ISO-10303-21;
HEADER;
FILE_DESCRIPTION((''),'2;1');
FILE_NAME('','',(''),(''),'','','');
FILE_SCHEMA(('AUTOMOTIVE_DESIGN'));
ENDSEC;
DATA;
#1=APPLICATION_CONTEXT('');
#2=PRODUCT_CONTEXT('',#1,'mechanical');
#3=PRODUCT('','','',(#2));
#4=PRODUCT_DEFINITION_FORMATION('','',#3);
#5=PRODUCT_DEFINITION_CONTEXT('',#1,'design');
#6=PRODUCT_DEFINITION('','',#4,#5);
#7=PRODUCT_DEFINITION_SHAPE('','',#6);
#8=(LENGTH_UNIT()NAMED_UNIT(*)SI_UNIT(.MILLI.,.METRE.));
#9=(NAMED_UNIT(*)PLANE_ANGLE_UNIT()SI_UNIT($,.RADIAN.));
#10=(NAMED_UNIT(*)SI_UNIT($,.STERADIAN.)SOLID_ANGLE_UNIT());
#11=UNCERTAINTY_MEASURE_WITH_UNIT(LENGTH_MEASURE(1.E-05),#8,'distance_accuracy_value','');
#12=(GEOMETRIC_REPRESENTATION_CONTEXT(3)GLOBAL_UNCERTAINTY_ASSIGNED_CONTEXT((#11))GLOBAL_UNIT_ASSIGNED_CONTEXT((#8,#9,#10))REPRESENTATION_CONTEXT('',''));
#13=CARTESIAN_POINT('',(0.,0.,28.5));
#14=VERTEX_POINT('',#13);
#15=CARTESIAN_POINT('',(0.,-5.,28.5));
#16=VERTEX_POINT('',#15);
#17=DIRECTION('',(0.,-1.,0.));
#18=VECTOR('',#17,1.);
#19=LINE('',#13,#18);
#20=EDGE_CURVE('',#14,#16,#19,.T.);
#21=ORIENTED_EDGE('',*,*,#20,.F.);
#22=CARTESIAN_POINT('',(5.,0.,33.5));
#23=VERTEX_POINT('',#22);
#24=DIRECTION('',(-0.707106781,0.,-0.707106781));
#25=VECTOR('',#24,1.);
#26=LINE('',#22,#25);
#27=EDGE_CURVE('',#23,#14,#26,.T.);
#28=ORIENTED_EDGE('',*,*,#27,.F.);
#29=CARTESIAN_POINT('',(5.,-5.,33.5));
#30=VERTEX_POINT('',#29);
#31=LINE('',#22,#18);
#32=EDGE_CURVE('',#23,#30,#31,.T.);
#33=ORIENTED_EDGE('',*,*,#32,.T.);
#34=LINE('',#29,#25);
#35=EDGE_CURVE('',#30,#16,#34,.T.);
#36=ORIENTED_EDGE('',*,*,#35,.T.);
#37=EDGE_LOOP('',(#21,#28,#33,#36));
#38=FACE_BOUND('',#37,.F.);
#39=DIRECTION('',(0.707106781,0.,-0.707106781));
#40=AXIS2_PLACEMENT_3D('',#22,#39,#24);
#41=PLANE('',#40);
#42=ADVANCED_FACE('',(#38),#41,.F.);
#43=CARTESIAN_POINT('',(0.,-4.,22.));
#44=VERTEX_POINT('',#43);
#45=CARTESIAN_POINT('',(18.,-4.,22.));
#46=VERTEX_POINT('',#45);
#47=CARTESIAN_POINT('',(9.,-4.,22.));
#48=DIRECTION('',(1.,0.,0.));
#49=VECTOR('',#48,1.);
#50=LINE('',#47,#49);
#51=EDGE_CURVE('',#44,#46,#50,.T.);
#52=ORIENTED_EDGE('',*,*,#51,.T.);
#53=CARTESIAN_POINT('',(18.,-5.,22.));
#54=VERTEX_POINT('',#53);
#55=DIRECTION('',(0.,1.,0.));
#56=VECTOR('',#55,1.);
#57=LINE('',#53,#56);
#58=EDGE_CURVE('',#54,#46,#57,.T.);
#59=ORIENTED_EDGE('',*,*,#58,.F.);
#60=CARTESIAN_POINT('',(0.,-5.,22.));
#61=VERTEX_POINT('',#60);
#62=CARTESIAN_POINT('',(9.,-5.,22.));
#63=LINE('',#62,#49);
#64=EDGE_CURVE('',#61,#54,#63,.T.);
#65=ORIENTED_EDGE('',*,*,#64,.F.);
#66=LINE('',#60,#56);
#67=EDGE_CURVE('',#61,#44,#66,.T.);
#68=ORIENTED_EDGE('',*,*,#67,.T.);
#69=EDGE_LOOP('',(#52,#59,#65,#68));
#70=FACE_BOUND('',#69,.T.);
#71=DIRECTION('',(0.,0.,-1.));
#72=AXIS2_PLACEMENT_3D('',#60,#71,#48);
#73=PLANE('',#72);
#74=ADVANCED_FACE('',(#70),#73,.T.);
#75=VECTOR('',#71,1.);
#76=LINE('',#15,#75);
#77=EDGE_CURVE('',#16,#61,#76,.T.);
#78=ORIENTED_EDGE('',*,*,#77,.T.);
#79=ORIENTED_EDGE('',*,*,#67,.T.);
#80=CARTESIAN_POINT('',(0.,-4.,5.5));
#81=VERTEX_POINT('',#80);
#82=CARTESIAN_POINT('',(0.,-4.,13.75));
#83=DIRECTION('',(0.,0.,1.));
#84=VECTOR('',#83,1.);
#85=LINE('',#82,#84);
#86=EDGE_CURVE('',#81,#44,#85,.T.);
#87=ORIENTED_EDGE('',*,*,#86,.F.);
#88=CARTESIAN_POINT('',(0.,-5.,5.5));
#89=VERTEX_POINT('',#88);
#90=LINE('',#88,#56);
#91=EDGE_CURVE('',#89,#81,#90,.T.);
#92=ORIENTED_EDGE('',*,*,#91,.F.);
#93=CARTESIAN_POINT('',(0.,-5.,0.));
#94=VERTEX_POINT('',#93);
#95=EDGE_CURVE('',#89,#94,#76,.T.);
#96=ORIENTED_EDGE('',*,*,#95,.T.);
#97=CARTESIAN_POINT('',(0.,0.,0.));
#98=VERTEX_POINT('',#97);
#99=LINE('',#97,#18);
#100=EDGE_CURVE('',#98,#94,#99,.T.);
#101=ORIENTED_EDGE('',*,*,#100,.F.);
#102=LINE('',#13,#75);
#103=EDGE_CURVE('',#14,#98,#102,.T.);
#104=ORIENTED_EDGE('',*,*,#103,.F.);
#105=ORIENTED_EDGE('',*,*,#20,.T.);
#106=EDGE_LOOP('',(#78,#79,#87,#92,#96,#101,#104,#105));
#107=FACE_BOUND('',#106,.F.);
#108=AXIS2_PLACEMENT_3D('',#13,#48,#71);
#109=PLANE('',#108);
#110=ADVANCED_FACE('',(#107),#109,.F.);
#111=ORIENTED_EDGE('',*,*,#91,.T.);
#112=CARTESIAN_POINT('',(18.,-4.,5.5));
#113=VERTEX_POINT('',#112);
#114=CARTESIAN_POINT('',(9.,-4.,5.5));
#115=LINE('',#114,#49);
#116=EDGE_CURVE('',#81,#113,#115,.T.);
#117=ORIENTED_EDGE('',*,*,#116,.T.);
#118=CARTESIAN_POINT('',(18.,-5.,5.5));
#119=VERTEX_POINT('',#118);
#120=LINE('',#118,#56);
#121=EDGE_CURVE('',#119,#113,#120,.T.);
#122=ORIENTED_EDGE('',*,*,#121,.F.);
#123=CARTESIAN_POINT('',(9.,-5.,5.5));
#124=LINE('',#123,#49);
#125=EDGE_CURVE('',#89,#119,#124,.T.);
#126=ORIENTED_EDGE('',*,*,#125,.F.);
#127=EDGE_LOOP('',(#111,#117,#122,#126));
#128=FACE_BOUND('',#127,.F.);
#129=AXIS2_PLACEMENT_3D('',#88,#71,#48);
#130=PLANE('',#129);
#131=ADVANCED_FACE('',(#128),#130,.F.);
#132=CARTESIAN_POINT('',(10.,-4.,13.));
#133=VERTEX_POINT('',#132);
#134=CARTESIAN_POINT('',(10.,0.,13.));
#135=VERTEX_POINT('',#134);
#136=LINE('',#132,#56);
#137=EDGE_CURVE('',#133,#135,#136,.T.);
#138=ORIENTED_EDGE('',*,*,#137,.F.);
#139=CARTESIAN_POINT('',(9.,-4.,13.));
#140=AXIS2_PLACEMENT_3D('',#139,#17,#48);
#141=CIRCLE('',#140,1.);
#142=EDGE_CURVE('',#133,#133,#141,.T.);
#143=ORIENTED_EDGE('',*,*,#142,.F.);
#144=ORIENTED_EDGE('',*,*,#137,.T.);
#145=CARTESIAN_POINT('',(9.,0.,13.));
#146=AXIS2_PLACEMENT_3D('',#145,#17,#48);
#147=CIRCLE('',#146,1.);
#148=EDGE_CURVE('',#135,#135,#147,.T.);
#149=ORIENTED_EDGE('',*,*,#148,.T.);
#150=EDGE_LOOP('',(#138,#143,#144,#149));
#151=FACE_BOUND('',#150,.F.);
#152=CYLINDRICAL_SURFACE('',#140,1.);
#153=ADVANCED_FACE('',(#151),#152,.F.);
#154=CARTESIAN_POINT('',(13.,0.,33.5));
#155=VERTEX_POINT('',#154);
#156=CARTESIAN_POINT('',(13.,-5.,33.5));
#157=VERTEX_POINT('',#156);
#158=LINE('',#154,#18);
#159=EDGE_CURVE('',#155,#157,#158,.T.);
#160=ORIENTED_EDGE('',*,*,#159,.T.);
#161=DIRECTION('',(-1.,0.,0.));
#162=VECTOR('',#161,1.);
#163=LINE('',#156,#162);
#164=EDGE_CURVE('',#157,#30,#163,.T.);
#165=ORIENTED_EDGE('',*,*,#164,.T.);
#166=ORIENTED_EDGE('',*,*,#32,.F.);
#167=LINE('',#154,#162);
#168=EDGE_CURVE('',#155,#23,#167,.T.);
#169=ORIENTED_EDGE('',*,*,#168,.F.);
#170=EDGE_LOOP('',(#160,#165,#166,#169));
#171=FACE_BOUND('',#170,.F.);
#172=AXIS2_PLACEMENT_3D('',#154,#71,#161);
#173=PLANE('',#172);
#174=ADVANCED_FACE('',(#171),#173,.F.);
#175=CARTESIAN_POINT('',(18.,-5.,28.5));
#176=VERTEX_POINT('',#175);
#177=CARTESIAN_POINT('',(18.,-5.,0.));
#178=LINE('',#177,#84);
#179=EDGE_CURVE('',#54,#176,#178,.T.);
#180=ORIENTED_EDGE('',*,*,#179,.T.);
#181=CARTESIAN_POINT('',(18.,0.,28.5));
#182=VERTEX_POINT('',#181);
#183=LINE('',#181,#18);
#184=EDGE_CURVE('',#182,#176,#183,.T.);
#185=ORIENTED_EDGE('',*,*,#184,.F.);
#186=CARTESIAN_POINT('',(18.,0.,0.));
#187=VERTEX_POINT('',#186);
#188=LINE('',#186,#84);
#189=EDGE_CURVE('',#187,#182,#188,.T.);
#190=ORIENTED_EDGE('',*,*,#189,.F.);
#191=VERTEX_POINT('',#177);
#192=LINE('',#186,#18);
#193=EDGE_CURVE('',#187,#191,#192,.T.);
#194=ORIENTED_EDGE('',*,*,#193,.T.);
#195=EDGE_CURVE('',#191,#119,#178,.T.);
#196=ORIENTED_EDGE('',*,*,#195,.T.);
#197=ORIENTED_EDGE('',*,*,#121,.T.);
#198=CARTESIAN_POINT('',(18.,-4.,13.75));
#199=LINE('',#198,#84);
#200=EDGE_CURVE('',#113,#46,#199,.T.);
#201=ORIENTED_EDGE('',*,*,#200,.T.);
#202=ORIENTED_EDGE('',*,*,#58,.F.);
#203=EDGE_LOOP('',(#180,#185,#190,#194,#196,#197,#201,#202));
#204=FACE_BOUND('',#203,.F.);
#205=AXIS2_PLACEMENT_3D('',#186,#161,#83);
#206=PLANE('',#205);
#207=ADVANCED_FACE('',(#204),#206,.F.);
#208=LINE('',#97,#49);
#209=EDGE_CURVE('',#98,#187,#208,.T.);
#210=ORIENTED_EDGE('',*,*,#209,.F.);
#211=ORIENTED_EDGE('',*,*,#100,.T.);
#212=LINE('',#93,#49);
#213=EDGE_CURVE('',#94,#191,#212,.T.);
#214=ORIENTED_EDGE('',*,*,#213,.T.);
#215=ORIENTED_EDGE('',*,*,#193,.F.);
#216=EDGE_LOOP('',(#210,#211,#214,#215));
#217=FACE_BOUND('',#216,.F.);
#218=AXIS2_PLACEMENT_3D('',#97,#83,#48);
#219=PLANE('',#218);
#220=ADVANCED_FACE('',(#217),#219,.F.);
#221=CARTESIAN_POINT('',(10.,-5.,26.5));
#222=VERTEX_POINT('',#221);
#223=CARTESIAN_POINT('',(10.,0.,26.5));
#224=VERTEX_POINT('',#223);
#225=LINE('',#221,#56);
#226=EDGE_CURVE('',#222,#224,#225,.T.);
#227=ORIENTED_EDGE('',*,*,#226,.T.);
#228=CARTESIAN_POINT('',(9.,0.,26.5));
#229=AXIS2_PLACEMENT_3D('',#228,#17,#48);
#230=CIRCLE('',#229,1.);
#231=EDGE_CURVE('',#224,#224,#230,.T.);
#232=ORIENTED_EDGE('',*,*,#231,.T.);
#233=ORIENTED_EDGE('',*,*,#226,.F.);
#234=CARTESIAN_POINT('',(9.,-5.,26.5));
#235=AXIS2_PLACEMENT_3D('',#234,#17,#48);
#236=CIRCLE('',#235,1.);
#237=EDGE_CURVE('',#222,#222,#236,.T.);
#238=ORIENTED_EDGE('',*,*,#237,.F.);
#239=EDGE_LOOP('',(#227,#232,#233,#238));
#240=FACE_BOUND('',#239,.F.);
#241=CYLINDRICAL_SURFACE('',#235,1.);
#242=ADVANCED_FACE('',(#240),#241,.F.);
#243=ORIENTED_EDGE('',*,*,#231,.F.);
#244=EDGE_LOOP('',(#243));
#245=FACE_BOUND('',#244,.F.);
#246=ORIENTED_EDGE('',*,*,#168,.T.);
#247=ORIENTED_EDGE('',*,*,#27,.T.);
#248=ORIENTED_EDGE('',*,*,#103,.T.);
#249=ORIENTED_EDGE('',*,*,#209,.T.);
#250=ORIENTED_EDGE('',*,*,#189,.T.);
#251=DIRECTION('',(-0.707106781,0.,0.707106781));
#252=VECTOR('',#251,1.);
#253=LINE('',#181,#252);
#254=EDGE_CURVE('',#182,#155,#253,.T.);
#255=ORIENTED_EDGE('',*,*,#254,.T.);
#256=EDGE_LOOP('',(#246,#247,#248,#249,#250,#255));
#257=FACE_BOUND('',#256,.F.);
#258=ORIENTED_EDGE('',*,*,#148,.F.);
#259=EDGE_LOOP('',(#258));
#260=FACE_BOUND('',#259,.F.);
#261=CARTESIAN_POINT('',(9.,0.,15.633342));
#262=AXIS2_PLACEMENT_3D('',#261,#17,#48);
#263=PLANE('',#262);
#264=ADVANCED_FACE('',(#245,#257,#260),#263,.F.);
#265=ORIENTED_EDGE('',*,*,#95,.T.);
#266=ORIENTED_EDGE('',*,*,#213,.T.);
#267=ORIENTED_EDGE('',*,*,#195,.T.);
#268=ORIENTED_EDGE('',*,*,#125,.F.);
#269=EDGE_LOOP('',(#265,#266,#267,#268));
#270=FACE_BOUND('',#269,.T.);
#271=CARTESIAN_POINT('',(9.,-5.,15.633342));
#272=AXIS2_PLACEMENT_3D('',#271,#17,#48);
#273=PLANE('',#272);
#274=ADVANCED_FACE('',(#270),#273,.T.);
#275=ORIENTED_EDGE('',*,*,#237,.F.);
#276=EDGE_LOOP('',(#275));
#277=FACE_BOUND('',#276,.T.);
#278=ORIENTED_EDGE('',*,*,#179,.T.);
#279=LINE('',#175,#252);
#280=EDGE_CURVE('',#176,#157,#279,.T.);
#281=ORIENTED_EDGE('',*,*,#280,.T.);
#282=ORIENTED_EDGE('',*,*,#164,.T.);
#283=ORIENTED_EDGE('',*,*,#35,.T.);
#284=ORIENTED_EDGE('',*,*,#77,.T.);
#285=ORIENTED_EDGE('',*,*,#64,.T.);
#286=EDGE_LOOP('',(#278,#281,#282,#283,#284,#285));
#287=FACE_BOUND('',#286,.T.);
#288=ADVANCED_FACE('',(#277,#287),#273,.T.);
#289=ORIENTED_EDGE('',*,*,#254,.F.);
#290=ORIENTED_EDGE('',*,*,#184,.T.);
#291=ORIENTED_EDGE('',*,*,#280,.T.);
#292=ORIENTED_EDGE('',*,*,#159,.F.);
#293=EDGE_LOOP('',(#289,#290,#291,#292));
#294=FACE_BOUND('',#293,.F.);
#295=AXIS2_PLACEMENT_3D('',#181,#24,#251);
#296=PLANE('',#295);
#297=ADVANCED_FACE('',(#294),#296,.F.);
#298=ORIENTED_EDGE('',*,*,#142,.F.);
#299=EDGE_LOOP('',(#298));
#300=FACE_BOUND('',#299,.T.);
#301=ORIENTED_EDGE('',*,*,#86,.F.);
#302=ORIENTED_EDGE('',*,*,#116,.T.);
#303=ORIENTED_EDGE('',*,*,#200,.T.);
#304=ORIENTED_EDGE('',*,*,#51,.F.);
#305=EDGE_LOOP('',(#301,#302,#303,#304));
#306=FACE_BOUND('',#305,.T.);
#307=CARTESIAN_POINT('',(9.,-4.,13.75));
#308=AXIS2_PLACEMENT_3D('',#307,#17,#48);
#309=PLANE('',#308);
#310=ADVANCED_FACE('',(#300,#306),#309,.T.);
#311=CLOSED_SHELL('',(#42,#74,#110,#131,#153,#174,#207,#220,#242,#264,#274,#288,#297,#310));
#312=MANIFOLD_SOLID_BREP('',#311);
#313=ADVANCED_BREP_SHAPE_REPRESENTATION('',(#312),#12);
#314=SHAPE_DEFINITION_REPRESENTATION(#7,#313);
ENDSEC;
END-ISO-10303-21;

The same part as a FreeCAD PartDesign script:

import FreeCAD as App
import Part
import Sketcher
from FreeCAD import Vector
Q = App.Units.Quantity


def add_polygon(sketch, points):
    """Adds a closed chain of lines whose ends are joined by coincident constraints."""
    first, n = sketch.GeometryCount, len(points)
    for a, b in zip(points, points[1:] + points[:1]):
        sketch.addGeometry(Part.LineSegment(App.Vector(*a, 0), App.Vector(*b, 0)), False)
    for i in range(n):
        sketch.addConstraint(Sketcher.Constraint("Coincident", first + i, 2, first + (i + 1) % n, 1))

doc = App.newDocument("Part")
body = doc.addObject("PartDesign::Body", "Body")

sketch1 = body.newObject("Sketcher::SketchObject", "Sketch")
sketch1.AttachmentSupport = (doc.getObject("XZ_Plane"), [""])
sketch1.MapMode = "FlatFace"
add_polygon(sketch1, [(0, 28), (0, 0), (18, 0), (18, 28), (13, 34), (5, 34)])
sketch1.addConstraint([
    Sketcher.Constraint("Vertical", 0),
    Sketcher.Constraint("Horizontal", 1),
    Sketcher.Constraint("Vertical", 2),
    Sketcher.Constraint("Horizontal", 4),
    Sketcher.Constraint("Coincident", 0, 2, -1, 1),
    Sketcher.Constraint("Perpendicular", 3, 5),
    Sketcher.Constraint("Horizontal", 2, 2, 5, 2),
    Sketcher.Constraint("Equal", 3, 5),
    Sketcher.Constraint("DistanceX", 1, 1, 1, 2, Q("18 mm")),
    Sketcher.Constraint("DistanceX", 4, 2, 4, 1, Q("8 mm")),
    Sketcher.Constraint("DistanceY", 0, 2, 0, 1, Q("28.5 mm")),
])
pad1 = body.newObject("PartDesign::Pad", "Pad")
pad1.Profile = sketch1
pad1.Length = 5

sketch2 = body.newObject("Sketcher::SketchObject", "Sketch001")
sketch2.AttachmentSupport = (doc.getObject("XZ_Plane"), [""])
sketch2.MapMode = "FlatFace"
sketch2.AttachmentOffset = App.Placement(Vector(0, 0, 5), App.Rotation())
add_polygon(sketch2, [(0, 22), (0, 6), (18, 6), (18, 22)])
sketch2.addConstraint([
    Sketcher.Constraint("Vertical", 0),
    Sketcher.Constraint("Horizontal", 1),
    Sketcher.Constraint("Vertical", 2),
    Sketcher.Constraint("Horizontal", 3),
    Sketcher.Constraint("PointOnObject", 0, 2, -2),
    Sketcher.Constraint("DistanceX", 1, 1, 1, 2, Q("18 mm")),
    Sketcher.Constraint("DistanceY", 0, 2, 0, 1, Q("16.5 mm")),
    Sketcher.Constraint("DistanceY", -1, 1, 2, 2, Q("22 mm")),
])
pocket1 = body.newObject("PartDesign::Pocket", "Pocket")
pocket1.Profile = sketch2
pocket1.Length = 1

sketch3 = body.newObject("Sketcher::SketchObject", "Sketch002")
sketch3.AttachmentSupport = (doc.getObject("XZ_Plane"), [""])
sketch3.MapMode = "FlatFace"
sketch3.AttachmentOffset = App.Placement(Vector(0, 0, 5), App.Rotation())
sketch3.addGeometry(Part.Circle(Vector(9, 26.5, 0), Vector(0, 0, 1), 1), False)
sketch3.addConstraint([
    Sketcher.Constraint("Diameter", 0, Q("2 mm")),
    Sketcher.Constraint("DistanceX", -1, 1, 0, 3, Q("9 mm")),
    Sketcher.Constraint("DistanceY", -1, 1, 0, 3, Q("26.5 mm")),
])
pocket2 = body.newObject("PartDesign::Pocket", "Pocket001")
pocket2.Profile = sketch3
pocket2.Type = "ThroughAll"

sketch4 = body.newObject("Sketcher::SketchObject", "Sketch003")
sketch4.AttachmentSupport = (doc.getObject("XZ_Plane"), [""])
sketch4.MapMode = "FlatFace"
sketch4.AttachmentOffset = App.Placement(Vector(0, 0, 4), App.Rotation())
sketch4.addGeometry(Part.Circle(Vector(9, 13, 0), Vector(0, 0, 1), 1), False)
sketch4.addConstraint([
    Sketcher.Constraint("Diameter", 0, Q("2 mm")),
    Sketcher.Constraint("DistanceX", -1, 1, 0, 3, Q("9 mm")),
    Sketcher.Constraint("DistanceY", -1, 1, 0, 3, Q("13 mm")),
])
pocket3 = body.newObject("PartDesign::Pocket", "Pocket002")
pocket3.Profile = sketch4
pocket3.Type = "ThroughAll"

doc.recompute()
